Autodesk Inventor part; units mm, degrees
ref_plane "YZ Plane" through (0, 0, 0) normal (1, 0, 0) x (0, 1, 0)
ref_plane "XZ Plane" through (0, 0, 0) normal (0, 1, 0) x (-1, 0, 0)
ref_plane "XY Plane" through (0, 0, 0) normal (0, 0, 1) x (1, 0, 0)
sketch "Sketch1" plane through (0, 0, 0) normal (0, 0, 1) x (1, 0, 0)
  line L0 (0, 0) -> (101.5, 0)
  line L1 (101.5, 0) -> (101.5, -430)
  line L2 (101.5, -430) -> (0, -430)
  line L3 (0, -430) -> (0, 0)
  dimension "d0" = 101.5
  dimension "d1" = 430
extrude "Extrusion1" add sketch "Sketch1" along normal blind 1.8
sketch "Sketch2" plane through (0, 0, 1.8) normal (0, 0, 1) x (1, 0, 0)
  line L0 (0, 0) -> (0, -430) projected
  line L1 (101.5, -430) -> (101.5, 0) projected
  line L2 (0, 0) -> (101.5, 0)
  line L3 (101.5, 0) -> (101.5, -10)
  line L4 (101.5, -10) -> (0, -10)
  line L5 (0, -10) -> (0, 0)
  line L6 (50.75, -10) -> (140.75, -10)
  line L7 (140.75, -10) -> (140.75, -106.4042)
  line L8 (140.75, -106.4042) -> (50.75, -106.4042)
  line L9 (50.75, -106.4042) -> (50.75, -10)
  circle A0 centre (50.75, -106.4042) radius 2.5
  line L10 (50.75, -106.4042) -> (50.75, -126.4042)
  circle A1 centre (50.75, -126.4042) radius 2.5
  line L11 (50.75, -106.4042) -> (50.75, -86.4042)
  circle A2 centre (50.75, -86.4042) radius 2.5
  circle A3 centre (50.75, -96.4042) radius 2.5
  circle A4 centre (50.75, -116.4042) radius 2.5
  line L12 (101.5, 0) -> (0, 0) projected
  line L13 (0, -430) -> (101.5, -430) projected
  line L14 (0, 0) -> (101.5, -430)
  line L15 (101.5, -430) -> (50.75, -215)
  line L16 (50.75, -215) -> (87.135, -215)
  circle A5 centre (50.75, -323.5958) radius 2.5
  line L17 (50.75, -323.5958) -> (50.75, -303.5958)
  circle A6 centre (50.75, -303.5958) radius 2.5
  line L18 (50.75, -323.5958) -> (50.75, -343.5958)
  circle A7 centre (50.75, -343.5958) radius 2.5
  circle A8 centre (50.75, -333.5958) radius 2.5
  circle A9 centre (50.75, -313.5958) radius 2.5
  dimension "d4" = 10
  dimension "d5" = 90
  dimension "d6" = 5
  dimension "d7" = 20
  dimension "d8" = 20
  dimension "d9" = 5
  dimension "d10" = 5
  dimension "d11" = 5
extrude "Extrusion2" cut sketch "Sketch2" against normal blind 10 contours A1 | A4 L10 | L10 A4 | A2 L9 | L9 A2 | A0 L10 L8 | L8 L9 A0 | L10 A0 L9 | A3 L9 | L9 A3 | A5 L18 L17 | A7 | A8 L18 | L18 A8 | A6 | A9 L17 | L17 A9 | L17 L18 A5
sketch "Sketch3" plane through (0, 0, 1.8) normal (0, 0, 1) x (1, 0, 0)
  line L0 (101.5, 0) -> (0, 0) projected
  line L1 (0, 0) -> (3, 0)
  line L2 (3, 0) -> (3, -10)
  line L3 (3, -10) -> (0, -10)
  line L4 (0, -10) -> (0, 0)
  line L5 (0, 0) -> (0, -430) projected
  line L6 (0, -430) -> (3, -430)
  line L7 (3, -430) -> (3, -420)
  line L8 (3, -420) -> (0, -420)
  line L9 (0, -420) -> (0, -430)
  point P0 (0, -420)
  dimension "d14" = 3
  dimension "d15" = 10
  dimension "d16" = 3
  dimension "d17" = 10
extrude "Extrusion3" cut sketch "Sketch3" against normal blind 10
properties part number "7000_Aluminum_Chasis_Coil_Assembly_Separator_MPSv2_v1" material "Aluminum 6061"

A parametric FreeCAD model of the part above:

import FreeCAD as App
import Part
import Sketcher

V = App.Vector
Q = App.Units.Quantity

doc = App.newDocument("Part")
body = doc.addObject("PartDesign::Body", "Body")

# Sketch on XY plane
sketch1 = doc.addObject("Sketcher::SketchObject", "Sketch")
body.addObject(sketch1)
sketch1.AttachmentSupport = (doc.XY_Plane, [""])
sketch1.MapMode = "FlatFace"
sketch1.addGeometry(Part.LineSegment(V(102, 0, 0), V(0, 0, 0)), False)
sketch1.addGeometry(Part.LineSegment(V(0, 0, 0), V(0, -430, 0)), False)
sketch1.addGeometry(Part.LineSegment(V(0, -430, 0), V(102, -430, 0)), False)
sketch1.addGeometry(Part.LineSegment(V(102, -430, 0), V(102, 0, 0)), False)
sketch1.addConstraint(Sketcher.Constraint("Coincident", 0, 2, 1, 1))
sketch1.addConstraint(Sketcher.Constraint("Coincident", 1, 2, 2, 1))
sketch1.addConstraint(Sketcher.Constraint("Coincident", 2, 2, 3, 1))
sketch1.addConstraint(Sketcher.Constraint("Coincident", 3, 2, 0, 1))
sketch1.addConstraint(Sketcher.Constraint("Horizontal", 0))
sketch1.addConstraint(Sketcher.Constraint("Vertical", 1))
sketch1.addConstraint(Sketcher.Constraint("Horizontal", 2))
sketch1.addConstraint(Sketcher.Constraint("Vertical", 3))
sketch1.addConstraint(Sketcher.Constraint("Coincident", 0, 2, -1, 1))
sketch1.addConstraint(Sketcher.Constraint("DistanceY", 1, 2, 1, 1, Q("430 mm")))
sketch1.addConstraint(Sketcher.Constraint("DistanceX", 0, 2, 0, 1, Q("101.5 mm")))
pad1 = doc.addObject("PartDesign::Pad", "Pad")
body.addObject(pad1)
pad1.Profile = sketch1
pad1.Length = 1.8

# Sketch on XY plane
sketch2 = doc.addObject("Sketcher::SketchObject", "Sketch001")
body.addObject(sketch2)
sketch2.AttachmentSupport = (doc.XY_Plane, [""])
sketch2.MapMode = "FlatFace"
sketch2.AttachmentOffset = App.Placement(V(0, 0, 1.8), App.Rotation())
sketch2.addGeometry(Part.Circle(V(50.8, -126.4, 0), V(0, 0, 1), 2.5), False)
sketch2.addGeometry(Part.Circle(V(50.8, -116.4, 0), V(0, 0, 1), 2.5), False)
sketch2.addGeometry(Part.Circle(V(50.8, -86.4, 0), V(0, 0, 1), 2.5), False)
sketch2.addGeometry(Part.Circle(V(50.8, -106.4, 0), V(0, 0, 1), 2.5), False)
sketch2.addGeometry(Part.Circle(V(50.8, -96.4, 0), V(0, 0, 1), 2.5), False)
sketch2.addGeometry(Part.Circle(V(50.8, -323.6, 0), V(0, 0, 1), 2.5), False)
sketch2.addGeometry(Part.Circle(V(50.8, -343.6, 0), V(0, 0, 1), 2.5), False)
sketch2.addGeometry(Part.Circle(V(50.8, -333.6, 0), V(0, 0, 1), 2.5), False)
sketch2.addGeometry(Part.Circle(V(50.8, -303.6, 0), V(0, 0, 1), 2.5), False)
sketch2.addGeometry(Part.Circle(V(50.8, -313.6, 0), V(0, 0, 1), 2.5), False)
sketch2.addConstraint(Sketcher.Constraint("Equal", 0, 1))
sketch2.addConstraint(Sketcher.Constraint("Equal", 1, 2))
sketch2.addConstraint(Sketcher.Constraint("Equal", 2, 3))
sketch2.addConstraint(Sketcher.Constraint("Equal", 3, 4))
sketch2.addConstraint(Sketcher.Constraint("Equal", 4, 5))
sketch2.addConstraint(Sketcher.Constraint("Equal", 5, 6))
sketch2.addConstraint(Sketcher.Constraint("Equal", 6, 7))
sketch2.addConstraint(Sketcher.Constraint("Equal", 7, 8))
sketch2.addConstraint(Sketcher.Constraint("Equal", 8, 9))
sketch2.addConstraint(Sketcher.Constraint("Vertical", 0, 3, 1, 3))
sketch2.addConstraint(Sketcher.Constraint("Vertical", 1, 3, 2, 3))
sketch2.addConstraint(Sketcher.Constraint("Vertical", 2, 3, 3, 3))
sketch2.addConstraint(Sketcher.Constraint("Vertical", 3, 3, 4, 3))
sketch2.addConstraint(Sketcher.Constraint("Vertical", 4, 3, 5, 3))
sketch2.addConstraint(Sketcher.Constraint("Vertical", 5, 3, 6, 3))
sketch2.addConstraint(Sketcher.Constraint("Vertical", 6, 3, 7, 3))
sketch2.addConstraint(Sketcher.Constraint("Vertical", 7, 3, 8, 3))
sketch2.addConstraint(Sketcher.Constraint("Vertical", 8, 3, 9, 3))
sketch2.addConstraint(Sketcher.Constraint("Diameter", 0, Q("5 mm")))
sketch2.addConstraint(Sketcher.Constraint("DistanceY", 0, 3, 1, 3, Q("10 mm")))
sketch2.addConstraint(Sketcher.Constraint("DistanceY", 1, 3, 3, 3, Q("10 mm")))
sketch2.addConstraint(Sketcher.Constraint("DistanceY", 3, 3, 2, 3, Q("20 mm")))
sketch2.addConstraint(Sketcher.Constraint("DistanceY", 4, 3, 2, 3, Q("10 mm")))
sketch2.addConstraint(Sketcher.Constraint("DistanceY", 6, 3, 5, 3, Q("20 mm")))
sketch2.addConstraint(Sketcher.Constraint("DistanceY", 7, 3, 5, 3, Q("10 mm")))
sketch2.addConstraint(Sketcher.Constraint("DistanceY", 5, 3, 8, 3, Q("20 mm")))
sketch2.addConstraint(Sketcher.Constraint("DistanceY", 5, 3, 9, 3, Q("10 mm")))
sketch2.addConstraint(Sketcher.Constraint("DistanceX", -1, 1, 0, 3, Q("50.75 mm")))
sketch2.addConstraint(Sketcher.Constraint("DistanceY", 0, 3, -1, 1, Q("126.4042 mm")))
sketch2.addConstraint(Sketcher.Constraint("DistanceY", 5, 3, -1, 1, Q("323.5958 mm")))
pocket1 = doc.addObject("PartDesign::Pocket", "Pocket")
body.addObject(pocket1)
pocket1.Profile = sketch2
pocket1.Length = 10

# Sketch on XY plane
sketch3 = doc.addObject("Sketcher::SketchObject", "Sketch002")
body.addObject(sketch3)
sketch3.AttachmentSupport = (doc.XY_Plane, [""])
sketch3.MapMode = "FlatFace"
sketch3.AttachmentOffset = App.Placement(V(0, 0, 1.8), App.Rotation())
sketch3.addGeometry(Part.LineSegment(V(3, -10, 0), V(3, 0, 0)), False)
sketch3.addGeometry(Part.LineSegment(V(3, 0, 0), V(0, 0, 0)), False)
sketch3.addGeometry(Part.LineSegment(V(0, 0, 0), V(0, -10, 0)), False)
sketch3.addGeometry(Part.LineSegment(V(0, -10, 0), V(3, -10, 0)), False)
sketch3.addGeometry(Part.LineSegment(V(3, -420, 0), V(0, -420, 0)), False)
sketch3.addGeometry(Part.LineSegment(V(0, -420, 0), V(0, -430, 0)), False)
sketch3.addGeometry(Part.LineSegment(V(0, -430, 0), V(3, -430, 0)), False)
sketch3.addGeometry(Part.LineSegment(V(3, -430, 0), V(3, -420, 0)), False)
sketch3.addConstraint(Sketcher.Constraint("Coincident", 0, 2, 1, 1))
sketch3.addConstraint(Sketcher.Constraint("Coincident", 1, 2, 2, 1))
sketch3.addConstraint(Sketcher.Constraint("Coincident", 2, 2, 3, 1))
sketch3.addConstraint(Sketcher.Constraint("Coincident", 3, 2, 0, 1))
sketch3.addConstraint(Sketcher.Constraint("Coincident", 4, 2, 5, 1))
sketch3.addConstraint(Sketcher.Constraint("Coincident", 5, 2, 6, 1))
sketch3.addConstraint(Sketcher.Constraint("Coincident", 6, 2, 7, 1))
sketch3.addConstraint(Sketcher.Constraint("Coincident", 7, 2, 4, 1))
sketch3.addConstraint(Sketcher.Constraint("Vertical", 0))
sketch3.addConstraint(Sketcher.Constraint("Horizontal", 1))
sketch3.addConstraint(Sketcher.Constraint("Vertical", 2))
sketch3.addConstraint(Sketcher.Constraint("Horizontal", 3))
sketch3.addConstraint(Sketcher.Constraint("Horizontal", 4))
sketch3.addConstraint(Sketcher.Constraint("Vertical", 5))
sketch3.addConstraint(Sketcher.Constraint("Horizontal", 6))
sketch3.addConstraint(Sketcher.Constraint("Vertical", 7))
sketch3.addConstraint(Sketcher.Constraint("Coincident", 1, 2, -1, 1))
sketch3.addConstraint(Sketcher.Constraint("PointOnObject", 4, 2, -2))
sketch3.addConstraint(Sketcher.Constraint("Vertical", 3, 2, 6, 2))
sketch3.addConstraint(Sketcher.Constraint("Equal", 2, 5))
sketch3.addConstraint(Sketcher.Constraint("DistanceX", 1, 2, 1, 1, Q("3 mm")))
sketch3.addConstraint(Sketcher.Constraint("DistanceY", 0, 1, 0, 2, Q("10 mm")))
sketch3.addConstraint(Sketcher.Constraint("DistanceY", 4, 2, -1, 1, Q("420 mm")))
pocket2 = doc.addObject("PartDesign::Pocket", "Pocket001")
body.addObject(pocket2)
pocket2.Profile = sketch3
pocket2.Length = 10

doc.recompute()
